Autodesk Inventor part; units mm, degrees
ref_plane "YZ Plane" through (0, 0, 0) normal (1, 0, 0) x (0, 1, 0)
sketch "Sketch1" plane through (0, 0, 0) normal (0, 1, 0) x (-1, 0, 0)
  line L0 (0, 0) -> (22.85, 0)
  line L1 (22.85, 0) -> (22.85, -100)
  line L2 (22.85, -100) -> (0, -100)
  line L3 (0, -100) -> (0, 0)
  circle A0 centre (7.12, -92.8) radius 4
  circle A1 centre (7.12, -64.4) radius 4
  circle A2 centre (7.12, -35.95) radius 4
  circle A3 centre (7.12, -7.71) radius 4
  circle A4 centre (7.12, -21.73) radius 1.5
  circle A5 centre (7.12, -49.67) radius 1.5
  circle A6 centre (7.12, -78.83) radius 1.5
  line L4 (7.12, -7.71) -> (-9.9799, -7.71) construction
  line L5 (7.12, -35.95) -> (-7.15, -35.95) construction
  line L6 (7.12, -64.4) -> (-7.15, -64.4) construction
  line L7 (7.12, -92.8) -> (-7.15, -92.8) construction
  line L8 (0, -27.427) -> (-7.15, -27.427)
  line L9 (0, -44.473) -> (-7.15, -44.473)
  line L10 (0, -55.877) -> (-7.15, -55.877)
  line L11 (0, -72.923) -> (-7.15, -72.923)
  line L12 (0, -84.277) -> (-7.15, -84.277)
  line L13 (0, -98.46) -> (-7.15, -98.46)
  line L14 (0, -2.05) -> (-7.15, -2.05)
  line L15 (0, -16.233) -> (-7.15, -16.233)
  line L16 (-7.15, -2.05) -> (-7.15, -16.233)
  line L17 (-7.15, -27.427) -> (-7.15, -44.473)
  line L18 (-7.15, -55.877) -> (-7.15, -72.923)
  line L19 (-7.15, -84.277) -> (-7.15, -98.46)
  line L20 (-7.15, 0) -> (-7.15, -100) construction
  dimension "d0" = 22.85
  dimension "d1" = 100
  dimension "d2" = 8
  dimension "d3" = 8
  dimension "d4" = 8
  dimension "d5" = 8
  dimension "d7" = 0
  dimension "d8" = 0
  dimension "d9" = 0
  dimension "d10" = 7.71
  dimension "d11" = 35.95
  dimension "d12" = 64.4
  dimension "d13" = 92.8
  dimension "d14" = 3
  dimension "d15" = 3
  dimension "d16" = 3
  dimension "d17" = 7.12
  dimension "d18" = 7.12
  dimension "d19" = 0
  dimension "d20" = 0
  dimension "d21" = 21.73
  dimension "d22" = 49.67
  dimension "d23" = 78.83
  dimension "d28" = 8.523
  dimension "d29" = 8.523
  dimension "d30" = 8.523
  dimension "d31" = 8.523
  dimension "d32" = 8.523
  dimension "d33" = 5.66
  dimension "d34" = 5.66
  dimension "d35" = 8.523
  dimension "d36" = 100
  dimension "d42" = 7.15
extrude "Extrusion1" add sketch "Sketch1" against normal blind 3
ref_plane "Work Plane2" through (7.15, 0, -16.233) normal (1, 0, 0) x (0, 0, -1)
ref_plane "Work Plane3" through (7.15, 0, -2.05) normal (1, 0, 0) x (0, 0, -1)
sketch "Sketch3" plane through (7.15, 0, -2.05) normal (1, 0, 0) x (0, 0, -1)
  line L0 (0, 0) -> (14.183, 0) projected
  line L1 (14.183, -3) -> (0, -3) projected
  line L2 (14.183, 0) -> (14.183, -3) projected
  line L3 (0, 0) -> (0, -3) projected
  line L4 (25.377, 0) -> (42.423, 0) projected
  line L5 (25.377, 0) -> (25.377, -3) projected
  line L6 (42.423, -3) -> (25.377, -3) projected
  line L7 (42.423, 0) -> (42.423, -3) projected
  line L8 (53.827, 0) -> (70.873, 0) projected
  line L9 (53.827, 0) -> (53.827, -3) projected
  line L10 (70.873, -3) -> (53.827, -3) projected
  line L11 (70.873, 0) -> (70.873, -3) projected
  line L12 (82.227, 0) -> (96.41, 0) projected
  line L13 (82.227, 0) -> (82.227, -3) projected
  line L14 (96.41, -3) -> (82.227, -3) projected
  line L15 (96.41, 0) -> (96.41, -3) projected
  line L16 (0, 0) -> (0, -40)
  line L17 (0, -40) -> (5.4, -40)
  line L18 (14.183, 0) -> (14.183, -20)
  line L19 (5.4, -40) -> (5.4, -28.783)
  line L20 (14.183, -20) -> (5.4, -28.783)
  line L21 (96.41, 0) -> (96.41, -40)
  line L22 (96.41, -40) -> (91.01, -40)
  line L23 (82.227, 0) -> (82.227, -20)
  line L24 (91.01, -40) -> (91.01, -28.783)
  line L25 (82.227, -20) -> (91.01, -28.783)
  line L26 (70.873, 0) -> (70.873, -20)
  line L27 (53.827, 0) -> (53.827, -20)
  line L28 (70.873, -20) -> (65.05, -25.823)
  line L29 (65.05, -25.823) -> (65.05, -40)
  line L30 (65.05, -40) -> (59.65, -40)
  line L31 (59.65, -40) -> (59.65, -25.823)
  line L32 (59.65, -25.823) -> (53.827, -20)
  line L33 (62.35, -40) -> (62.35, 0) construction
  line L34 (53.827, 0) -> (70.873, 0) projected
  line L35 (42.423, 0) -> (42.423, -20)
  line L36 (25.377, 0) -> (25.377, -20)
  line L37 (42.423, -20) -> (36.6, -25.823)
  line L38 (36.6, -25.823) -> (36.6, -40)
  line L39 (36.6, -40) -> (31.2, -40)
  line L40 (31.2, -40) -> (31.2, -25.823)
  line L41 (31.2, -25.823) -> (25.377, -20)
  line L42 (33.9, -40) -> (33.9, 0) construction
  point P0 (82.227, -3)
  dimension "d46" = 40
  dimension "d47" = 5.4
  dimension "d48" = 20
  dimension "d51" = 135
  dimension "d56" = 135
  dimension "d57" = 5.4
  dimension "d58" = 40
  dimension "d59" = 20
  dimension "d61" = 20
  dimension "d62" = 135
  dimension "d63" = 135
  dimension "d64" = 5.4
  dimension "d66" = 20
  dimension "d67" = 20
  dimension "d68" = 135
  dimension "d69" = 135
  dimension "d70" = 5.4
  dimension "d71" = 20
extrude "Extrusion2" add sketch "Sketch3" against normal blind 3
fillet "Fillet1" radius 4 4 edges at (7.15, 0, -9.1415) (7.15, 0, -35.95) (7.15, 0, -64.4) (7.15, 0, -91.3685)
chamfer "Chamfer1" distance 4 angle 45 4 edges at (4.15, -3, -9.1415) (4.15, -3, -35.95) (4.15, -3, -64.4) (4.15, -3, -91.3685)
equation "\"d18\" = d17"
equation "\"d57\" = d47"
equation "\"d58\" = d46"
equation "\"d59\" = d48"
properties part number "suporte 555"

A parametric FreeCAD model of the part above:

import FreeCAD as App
import Part
import Sketcher
Q = App.Units.Quantity


def edges_at(feature, points):
    """Names of the edges that pass closest to the given points."""
    edges = feature.Shape.Edges
    near = lambda p: min(range(len(edges)), key=lambda i: edges[i].distToShape(Part.Vertex(*p))[0])
    return sorted({f"Edge{near(p) + 1}" for p in points})

doc = App.newDocument("Part")
body = doc.addObject("PartDesign::Body", "Body")

# Sketch on XZ plane
sketch1 = body.newObject("Sketcher::SketchObject", "Sketch")
sketch1.AttachmentSupport = (doc.getObject("XZ_Plane"), [""])
sketch1.MapMode = "FlatFace"
sketch1.addGeometry([
    Part.LineSegment(App.Vector(-22.9, 0, 0), App.Vector(0, 0, 0)),  # 0
    Part.LineSegment(App.Vector(0, 0, 0), App.Vector(0, -2, 0)),  # 1
    Part.LineSegment(App.Vector(0, -2, 0), App.Vector(7.2, -2, 0)),  # 2
    Part.LineSegment(App.Vector(7.2, -2, 0), App.Vector(7.2, -16.2, 0)),  # 3
    Part.LineSegment(App.Vector(7.2, -16.2, 0), App.Vector(0, -16.2, 0)),  # 4
    Part.LineSegment(App.Vector(0, -16.2, 0), App.Vector(0, -27.4, 0)),  # 5
    Part.LineSegment(App.Vector(0, -27.4, 0), App.Vector(7.2, -27.4, 0)),  # 6
    Part.LineSegment(App.Vector(7.2, -27.4, 0), App.Vector(7.2, -44.5, 0)),  # 7
    Part.LineSegment(App.Vector(7.2, -44.5, 0), App.Vector(0, -44.5, 0)),  # 8
    Part.LineSegment(App.Vector(0, -44.5, 0), App.Vector(0, -55.9, 0)),  # 9
    Part.LineSegment(App.Vector(0, -55.9, 0), App.Vector(7.2, -55.9, 0)),  # 10
    Part.LineSegment(App.Vector(7.2, -55.9, 0), App.Vector(7.2, -72.9, 0)),  # 11
    Part.LineSegment(App.Vector(7.2, -72.9, 0), App.Vector(0, -72.9, 0)),  # 12
    Part.LineSegment(App.Vector(0, -72.9, 0), App.Vector(0, -84.3, 0)),  # 13
    Part.LineSegment(App.Vector(0, -84.3, 0), App.Vector(7.2, -84.3, 0)),  # 14
    Part.LineSegment(App.Vector(7.2, -84.3, 0), App.Vector(7.2, -98.5, 0)),  # 15
    Part.LineSegment(App.Vector(7.2, -98.5, 0), App.Vector(0, -98.5, 0)),  # 16
    Part.LineSegment(App.Vector(0, -98.5, 0), App.Vector(0, -100, 0)),  # 17
    Part.LineSegment(App.Vector(0, -100, 0), App.Vector(-22.9, -100, 0)),  # 18
    Part.LineSegment(App.Vector(-22.9, -100, 0), App.Vector(-22.9, 0, 0)),  # 19
    Part.Circle(App.Vector(-7.1, -92.8, 0), App.Vector(0, 0, 1), 4),  # 20
    Part.Circle(App.Vector(-7.1, -78.8, 0), App.Vector(0, 0, 1), 1.5),  # 21
    Part.Circle(App.Vector(-7.1, -64.4, 0), App.Vector(0, 0, 1), 4),  # 22
    Part.Circle(App.Vector(-7.1, -49.7, 0), App.Vector(0, 0, 1), 1.5),  # 23
    Part.Circle(App.Vector(-7.1, -36, 0), App.Vector(0, 0, 1), 4),  # 24
    Part.Circle(App.Vector(-7.1, -21.7, 0), App.Vector(0, 0, 1), 1.5),  # 25
    Part.Circle(App.Vector(-7.1, -7.7, 0), App.Vector(0, 0, 1), 4),  # 26
], False)
sketch1.addConstraint([
    Sketcher.Constraint("Coincident", 0, 2, 1, 1),
    Sketcher.Constraint("Coincident", 1, 2, 2, 1),
    Sketcher.Constraint("Coincident", 2, 2, 3, 1),
    Sketcher.Constraint("Coincident", 3, 2, 4, 1),
    Sketcher.Constraint("Coincident", 4, 2, 5, 1),
    Sketcher.Constraint("Coincident", 5, 2, 6, 1),
    Sketcher.Constraint("Coincident", 6, 2, 7, 1),
    Sketcher.Constraint("Coincident", 7, 2, 8, 1),
    Sketcher.Constraint("Coincident", 8, 2, 9, 1),
    Sketcher.Constraint("Coincident", 9, 2, 10, 1),
    Sketcher.Constraint("Coincident", 10, 2, 11, 1),
    Sketcher.Constraint("Coincident", 11, 2, 12, 1),
    Sketcher.Constraint("Coincident", 12, 2, 13, 1),
    Sketcher.Constraint("Coincident", 13, 2, 14, 1),
    Sketcher.Constraint("Coincident", 14, 2, 15, 1),
    Sketcher.Constraint("Coincident", 15, 2, 16, 1),
    Sketcher.Constraint("Coincident", 16, 2, 17, 1),
    Sketcher.Constraint("Coincident", 17, 2, 18, 1),
    Sketcher.Constraint("Coincident", 18, 2, 19, 1),
    Sketcher.Constraint("Coincident", 19, 2, 0, 1),
    Sketcher.Constraint("Horizontal", 0),
    Sketcher.Constraint("Vertical", 1),
    Sketcher.Constraint("Horizontal", 2),
    Sketcher.Constraint("Vertical", 3),
    Sketcher.Constraint("Horizontal", 4),
    Sketcher.Constraint("Vertical", 5),
    Sketcher.Constraint("Horizontal", 6),
    Sketcher.Constraint("Vertical", 7),
    Sketcher.Constraint("Horizontal", 8),
    Sketcher.Constraint("Vertical", 9),
    Sketcher.Constraint("Horizontal", 10),
    Sketcher.Constraint("Vertical", 11),
    Sketcher.Constraint("Horizontal", 12),
    Sketcher.Constraint("Vertical", 13),
    Sketcher.Constraint("Horizontal", 14),
    Sketcher.Constraint("Vertical", 15),
    Sketcher.Constraint("Horizontal", 16),
    Sketcher.Constraint("Vertical", 17),
    Sketcher.Constraint("Horizontal", 18),
    Sketcher.Constraint("Vertical", 19),
    Sketcher.Constraint("Coincident", 0, 2, -1, 1),
    Sketcher.Constraint("Equal", 20, 22),
    Sketcher.Constraint("Equal", 21, 23),
    Sketcher.Constraint("Equal", 22, 24),
    Sketcher.Constraint("Equal", 23, 25),
    Sketcher.Constraint("Equal", 24, 26),
    Sketcher.Constraint("PointOnObject", 4, 2, -2),
    Sketcher.Constraint("PointOnObject", 8, 2, -2),
    Sketcher.Constraint("PointOnObject", 12, 2, -2),
    Sketcher.Constraint("PointOnObject", 16, 2, -2),
    Sketcher.Constraint("Vertical", 20, 3, 21, 3),
    Sketcher.Constraint("Vertical", 21, 3, 22, 3),
    Sketcher.Constraint("Vertical", 22, 3, 23, 3),
    Sketcher.Constraint("Vertical", 23, 3, 24, 3),
    Sketcher.Constraint("Vertical", 24, 3, 25, 3),
    Sketcher.Constraint("Vertical", 25, 3, 26, 3),
    Sketcher.Constraint("Vertical", 3, 2, 6, 2),
    Sketcher.Constraint("Vertical", 7, 2, 10, 2),
    Sketcher.Constraint("Vertical", 11, 2, 14, 2),
    Sketcher.Constraint("Equal", 7, 11),
    Sketcher.Constraint("Equal", 3, 15),
    Sketcher.Constraint("Diameter", 20, Q("8 mm")),
    Sketcher.Constraint("Diameter", 21, Q("3 mm")),
    Sketcher.Constraint("DistanceY", 19, 1, 19, 2, Q("100 mm")),
    Sketcher.Constraint("DistanceX", 0, 1, 0, 2, Q("22.85 mm")),
    Sketcher.Constraint("DistanceX", 2, 1, 2, 2, Q("7.15 mm")),
    Sketcher.Constraint("DistanceY", 20, 3, -1, 1, Q("92.8 mm")),
    Sketcher.Constraint("DistanceY", 22, 3, -1, 1, Q("64.4 mm")),
    Sketcher.Constraint("DistanceX", 20, 3, -1, 1, Q("7.12 mm")),
    Sketcher.Constraint("DistanceY", 21, 3, -1, 1, Q("78.83 mm")),
    Sketcher.Constraint("DistanceY", 23, 3, -1, 1, Q("49.67 mm")),
    Sketcher.Constraint("DistanceY", 24, 3, -1, 1, Q("35.95 mm")),
    Sketcher.Constraint("DistanceY", 25, 3, -1, 1, Q("21.73 mm")),
    Sketcher.Constraint("DistanceY", 26, 3, -1, 1, Q("7.71 mm")),
    Sketcher.Constraint("DistanceY", 26, 3, 1, 2, Q("5.66 mm")),
    Sketcher.Constraint("DistanceY", 15, 2, 20, 3, Q("5.66 mm")),
    Sketcher.Constraint("DistanceY", 3, 2, 26, 3, Q("8.523 mm")),
    Sketcher.Constraint("DistanceY", 24, 3, 5, 2, Q("8.523 mm")),
    Sketcher.Constraint("DistanceY", 7, 2, 24, 3, Q("8.523 mm")),
    Sketcher.Constraint("DistanceY", 22, 3, 9, 2, Q("8.523 mm")),
])
pad1 = body.newObject("PartDesign::Pad", "Pad")
pad1.Profile = sketch1
pad1.Length = 3

# Sketch on YZ plane
sketch2 = body.newObject("Sketcher::SketchObject", "Sketch001")
sketch2.AttachmentSupport = (doc.getObject("YZ_Plane"), [""])
sketch2.MapMode = "FlatFace"
sketch2.AttachmentOffset = App.Placement(App.Vector(0, 0, 7.15), App.Rotation())
sketch2.addGeometry([
    Part.LineSegment(App.Vector(0, -16, 0), App.Vector(0, -2, 0)),  # 0
    Part.LineSegment(App.Vector(0, -2, 0), App.Vector(-40, -2, 0)),  # 1
    Part.LineSegment(App.Vector(-40, -2, 0), App.Vector(-40, -7, 0)),  # 2
    Part.LineSegment(App.Vector(-40, -7, 0), App.Vector(-29, -7, 0)),  # 3
    Part.LineSegment(App.Vector(-29, -7, 0), App.Vector(-20, -16, 0)),  # 4
    Part.LineSegment(App.Vector(-20, -16, 0), App.Vector(0, -16, 0)),  # 5
    Part.LineSegment(App.Vector(0, -44, 0), App.Vector(0, -27, 0)),  # 6
    Part.LineSegment(App.Vector(0, -27, 0), App.Vector(-20, -27, 0)),  # 7
    Part.LineSegment(App.Vector(-20, -27, 0), App.Vector(-26, -33, 0)),  # 8
    Part.LineSegment(App.Vector(-26, -33, 0), App.Vector(-40, -33, 0)),  # 9
    Part.LineSegment(App.Vector(-40, -33, 0), App.Vector(-40, -39, 0)),  # 10
    Part.LineSegment(App.Vector(-40, -39, 0), App.Vector(-26, -39, 0)),  # 11
    Part.LineSegment(App.Vector(-26, -39, 0), App.Vector(-20, -44, 0)),  # 12
    Part.LineSegment(App.Vector(-20, -44, 0), App.Vector(0, -44, 0)),  # 13
    Part.LineSegment(App.Vector(0, -73, 0), App.Vector(0, -56, 0)),  # 14
    Part.LineSegment(App.Vector(0, -56, 0), App.Vector(-20, -56, 0)),  # 15
    Part.LineSegment(App.Vector(-20, -56, 0), App.Vector(-26, -62, 0)),  # 16
    Part.LineSegment(App.Vector(-26, -62, 0), App.Vector(-40, -62, 0)),  # 17
    Part.LineSegment(App.Vector(-40, -62, 0), App.Vector(-40, -67, 0)),  # 18
    Part.LineSegment(App.Vector(-40, -67, 0), App.Vector(-26, -67, 0)),  # 19
    Part.LineSegment(App.Vector(-26, -67, 0), App.Vector(-20, -73, 0)),  # 20
    Part.LineSegment(App.Vector(-20, -73, 0), App.Vector(0, -73, 0)),  # 21
    Part.LineSegment(App.Vector(0, -98, 0), App.Vector(0, -84, 0)),  # 22
    Part.LineSegment(App.Vector(0, -84, 0), App.Vector(-20, -84, 0)),  # 23
    Part.LineSegment(App.Vector(-20, -84, 0), App.Vector(-29, -93, 0)),  # 24
    Part.LineSegment(App.Vector(-29, -93, 0), App.Vector(-40, -93, 0)),  # 25
    Part.LineSegment(App.Vector(-40, -93, 0), App.Vector(-40, -98, 0)),  # 26
    Part.LineSegment(App.Vector(-40, -98, 0), App.Vector(0, -98, 0)),  # 27
], False)
sketch2.addConstraint([
    Sketcher.Constraint("Coincident", 0, 2, 1, 1),
    Sketcher.Constraint("Coincident", 1, 2, 2, 1),
    Sketcher.Constraint("Coincident", 2, 2, 3, 1),
    Sketcher.Constraint("Coincident", 3, 2, 4, 1),
    Sketcher.Constraint("Coincident", 4, 2, 5, 1),
    Sketcher.Constraint("Coincident", 5, 2, 0, 1),
    Sketcher.Constraint("Coincident", 6, 2, 7, 1),
    Sketcher.Constraint("Coincident", 7, 2, 8, 1),
    Sketcher.Constraint("Coincident", 8, 2, 9, 1),
    Sketcher.Constraint("Coincident", 9, 2, 10, 1),
    Sketcher.Constraint("Coincident", 10, 2, 11, 1),
    Sketcher.Constraint("Coincident", 11, 2, 12, 1),
    Sketcher.Constraint("Coincident", 12, 2, 13, 1),
    Sketcher.Constraint("Coincident", 13, 2, 6, 1),
    Sketcher.Constraint("Coincident", 14, 2, 15, 1),
    Sketcher.Constraint("Coincident", 15, 2, 16, 1),
    Sketcher.Constraint("Coincident", 16, 2, 17, 1),
    Sketcher.Constraint("Coincident", 17, 2, 18, 1),
    Sketcher.Constraint("Coincident", 18, 2, 19, 1),
    Sketcher.Constraint("Coincident", 19, 2, 20, 1),
    Sketcher.Constraint("Coincident", 20, 2, 21, 1),
    Sketcher.Constraint("Coincident", 21, 2, 14, 1),
    Sketcher.Constraint("Coincident", 22, 2, 23, 1),
    Sketcher.Constraint("Coincident", 23, 2, 24, 1),
    Sketcher.Constraint("Coincident", 24, 2, 25, 1),
    Sketcher.Constraint("Coincident", 25, 2, 26, 1),
    Sketcher.Constraint("Coincident", 26, 2, 27, 1),
    Sketcher.Constraint("Coincident", 27, 2, 22, 1),
    Sketcher.Constraint("Vertical", 0),
    Sketcher.Constraint("Horizontal", 1),
    Sketcher.Constraint("Vertical", 2),
    Sketcher.Constraint("Horizontal", 3),
    Sketcher.Constraint("Horizontal", 5),
    Sketcher.Constraint("Vertical", 6),
    Sketcher.Constraint("Horizontal", 7),
    Sketcher.Constraint("Horizontal", 9),
    Sketcher.Constraint("Vertical", 10),
    Sketcher.Constraint("Horizontal", 11),
    Sketcher.Constraint("Horizontal", 13),
    Sketcher.Constraint("Vertical", 14),
    Sketcher.Constraint("Horizontal", 15),
    Sketcher.Constraint("Horizontal", 17),
    Sketcher.Constraint("Vertical", 18),
    Sketcher.Constraint("Horizontal", 19),
    Sketcher.Constraint("Horizontal", 21),
    Sketcher.Constraint("Vertical", 22),
    Sketcher.Constraint("Horizontal", 23),
    Sketcher.Constraint("Horizontal", 25),
    Sketcher.Constraint("Vertical", 26),
    Sketcher.Constraint("Horizontal", 27),
    Sketcher.Constraint("PointOnObject", 0, 2, -2),
    Sketcher.Constraint("PointOnObject", 6, 2, -2),
    Sketcher.Constraint("PointOnObject", 14, 2, -2),
    Sketcher.Constraint("PointOnObject", 22, 2, -2),
    Sketcher.Constraint("Perpendicular", 4, 8),
    Sketcher.Constraint("Perpendicular", 8, 12),
    Sketcher.Constraint("Perpendicular", 12, 16),
    Sketcher.Constraint("Perpendicular", 16, 20),
    Sketcher.Constraint("Perpendicular", 20, 24),
    Sketcher.Constraint("Vertical", 4, 2, 7, 2),
    Sketcher.Constraint("Vertical", 2, 2, 9, 2),
    Sketcher.Constraint("Vertical", 8, 2, 11, 2),
    Sketcher.Constraint("Vertical", 7, 2, 12, 2),
    Sketcher.Constraint("Vertical", 12, 2, 15, 2),
    Sketcher.Constraint("Vertical", 11, 2, 16, 2),
    Sketcher.Constraint("Vertical", 10, 2, 17, 2),
    Sketcher.Constraint("Vertical", 16, 2, 19, 2),
    Sketcher.Constraint("Vertical", 15, 2, 20, 2),
    Sketcher.Constraint("Vertical", 20, 2, 23, 2),
    Sketcher.Constraint("Vertical", 3, 2, 24, 2),
    Sketcher.Constraint("Vertical", 18, 2, 25, 2),
    Sketcher.Constraint("Equal", 2, 10),
    Sketcher.Constraint("Equal", 6, 14),
    Sketcher.Constraint("Equal", 0, 22),
    Sketcher.Constraint("Equal", 18, 26),
    Sketcher.Constraint("DistanceX", 1, 2, 1, 1, Q("40 mm")),
    Sketcher.Constraint("DistanceX", 5, 1, 5, 2, Q("20 mm")),
    Sketcher.Constraint("DistanceY", 2, 2, 2, 1, Q("5.4 mm")),
    Sketcher.Constraint("DistanceY", 16, 2, -1, 1, Q("61.7 mm")),
    Sketcher.Constraint("DistanceY", 8, 2, 3, 2, Q("25.8 mm")),
    Sketcher.Constraint("DistanceY", 22, 2, 14, 2, Q("28.4 mm")),
    Sketcher.Constraint("DistanceX", 3, 1, 3, 2, Q("11.217 mm")),
    Sketcher.Constraint("DistanceX", 9, 2, 9, 1, Q("14.177 mm")),
    Sketcher.Constraint("DistanceY", 0, 2, -1, 1, Q("2.05 mm")),
])
pad2 = body.newObject("PartDesign::Pad", "Pad001")
pad2.Profile = sketch2
pad2.Length = 3
pad2.Reversed = True
doc.recompute()

fillet = body.newObject("PartDesign::Fillet", "Fillet")
fillet.Base = (pad2, edges_at(pad2, [
    (7.15, 0, -9.142),
    (7.15, 0, -35.95),
    (7.15, 0, -64.4),
    (7.15, 0, -91.368),
]))
fillet.Radius = 4
doc.recompute()

chamfer = body.newObject("PartDesign::Chamfer", "Chamfer")
chamfer.Base = (fillet, edges_at(fillet, [
    (4.15, -3, -9.142),
    (4.15, -3, -35.95),
    (4.15, -3, -64.4),
    (4.15, -3, -91.368),
]))
chamfer.Size = 4

doc.recompute()
